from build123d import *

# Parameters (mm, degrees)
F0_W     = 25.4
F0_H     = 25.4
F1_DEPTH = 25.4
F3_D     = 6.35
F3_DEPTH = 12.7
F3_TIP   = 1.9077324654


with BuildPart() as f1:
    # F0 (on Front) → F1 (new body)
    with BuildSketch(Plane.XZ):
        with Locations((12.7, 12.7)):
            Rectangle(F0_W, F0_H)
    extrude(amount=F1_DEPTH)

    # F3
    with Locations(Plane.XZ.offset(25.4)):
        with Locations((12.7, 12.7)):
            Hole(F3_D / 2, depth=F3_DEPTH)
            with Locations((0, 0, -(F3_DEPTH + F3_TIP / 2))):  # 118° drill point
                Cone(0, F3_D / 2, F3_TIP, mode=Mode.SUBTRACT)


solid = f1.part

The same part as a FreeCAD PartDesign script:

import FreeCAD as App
import Part
import Sketcher
from FreeCAD import Vector
Q = App.Units.Quantity


def add_polygon(sketch, points):
    """Adds a closed chain of lines whose ends are joined by coincident constraints."""
    first, n = sketch.GeometryCount, len(points)
    for a, b in zip(points, points[1:] + points[:1]):
        sketch.addGeometry(Part.LineSegment(App.Vector(*a, 0), App.Vector(*b, 0)), False)
    for i in range(n):
        sketch.addConstraint(Sketcher.Constraint("Coincident", first + i, 2, first + (i + 1) % n, 1))

doc = App.newDocument("Part")
body = doc.addObject("PartDesign::Body", "Body")

# Sketch on XZ plane
sketch1 = doc.addObject("Sketcher::SketchObject", "Sketch")
body.addObject(sketch1)
sketch1.AttachmentSupport = (doc.XZ_Plane, [""])
sketch1.MapMode = "FlatFace"
add_polygon(sketch1, [(0, 25), (0, 0), (25, 0), (25, 25)])  # lines 0-3
sketch1.addConstraint(Sketcher.Constraint("Vertical", 0))
sketch1.addConstraint(Sketcher.Constraint("Horizontal", 1))
sketch1.addConstraint(Sketcher.Constraint("Vertical", 2))
sketch1.addConstraint(Sketcher.Constraint("Horizontal", 3))
sketch1.addConstraint(Sketcher.Constraint("Coincident", 0, 2, -1, 1))
sketch1.addConstraint(Sketcher.Constraint("Equal", 3, 0))
sketch1.addConstraint(Sketcher.Constraint("DistanceX", 1, 1, 1, 2, Q("1 in")))
pad1 = doc.addObject("PartDesign::Pad", "Pad")
body.addObject(pad1)
pad1.Profile = sketch1
pad1.Length = Q("1 in")

# Sketch on XZ plane
sketch2 = doc.addObject("Sketcher::SketchObject", "Sketch001")
body.addObject(sketch2)
sketch2.AttachmentSupport = (doc.XZ_Plane, [""])
sketch2.MapMode = "FlatFace"
sketch2.AttachmentOffset = App.Placement(Vector(0, 0, 1 * 25.4), App.Rotation())
sketch2.addGeometry(Part.Circle(Vector(12.7, 12.7, 0), Vector(0, 0, 1), 3.2), False)
sketch2.addConstraint(Sketcher.Constraint("Diameter", 0, Q("0.25 in")))
sketch2.addConstraint(Sketcher.Constraint("DistanceX", -1, 1, 0, 3, Q("0.5 in")))
sketch2.addConstraint(Sketcher.Constraint("DistanceY", -1, 1, 0, 3, Q("0.5 in")))
doc.recompute()
hole = doc.addObject("PartDesign::Hole", "Hole")
body.addObject(hole)
hole.Profile = sketch2
hole.ThreadType = "None"
hole.Diameter = Q("0.25 in")
hole.DepthType = "Dimension"
hole.Depth = Q("0.5 in")
hole.DrillPoint = "Angled"
hole.DrillPointAngle = 118

doc.recompute()
